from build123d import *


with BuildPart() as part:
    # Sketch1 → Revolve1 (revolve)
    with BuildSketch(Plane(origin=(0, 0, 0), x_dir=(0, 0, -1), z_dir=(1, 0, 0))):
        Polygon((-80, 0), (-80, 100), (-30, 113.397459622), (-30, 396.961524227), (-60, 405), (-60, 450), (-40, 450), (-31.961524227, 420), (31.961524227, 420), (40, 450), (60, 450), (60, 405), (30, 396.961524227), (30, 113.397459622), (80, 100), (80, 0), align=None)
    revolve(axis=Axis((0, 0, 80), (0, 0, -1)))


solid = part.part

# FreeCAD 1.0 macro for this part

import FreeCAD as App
import Part
import Sketcher
Q = App.Units.Quantity

doc = App.newDocument("Part")
body = doc.addObject("PartDesign::Body", "Body")

sketch1 = body.newObject("Sketcher::SketchObject", "Sketch")
sketch1.AttachmentSupport = (doc.getObject("YZ_Plane"), [""])
sketch1.MapMode = "FlatFace"
sketch1.addGeometry([
    Part.LineSegment(App.Vector(100, 80, 0), App.Vector(0, 80, 0)),
    Part.LineSegment(App.Vector(0, 80, 0), App.Vector(0, -80, 0)),
    Part.LineSegment(App.Vector(0, -80, 0), App.Vector(100, -80, 0)),
    Part.LineSegment(App.Vector(100, -80, 0), App.Vector(113, -30, 0)),
    Part.LineSegment(App.Vector(113, -30, 0), App.Vector(397, -30, 0)),
    Part.LineSegment(App.Vector(397, -30, 0), App.Vector(405, -60, 0)),
    Part.LineSegment(App.Vector(405, -60, 0), App.Vector(450, -60, 0)),
    Part.LineSegment(App.Vector(450, -60, 0), App.Vector(450, -40, 0)),
    Part.LineSegment(App.Vector(450, -40, 0), App.Vector(420, -32, 0)),
    Part.LineSegment(App.Vector(420, -32, 0), App.Vector(420, 32, 0)),
    Part.LineSegment(App.Vector(420, 32, 0), App.Vector(450, 40, 0)),
    Part.LineSegment(App.Vector(450, 40, 0), App.Vector(450, 60, 0)),
    Part.LineSegment(App.Vector(450, 60, 0), App.Vector(405, 60, 0)),
    Part.LineSegment(App.Vector(405, 60, 0), App.Vector(397, 30, 0)),
    Part.LineSegment(App.Vector(397, 30, 0), App.Vector(113, 30, 0)),
    Part.LineSegment(App.Vector(113, 30, 0), App.Vector(100, 80, 0)),
], False)
sketch1.addConstraint([
    Sketcher.Constraint("Coincident", 0, 2, 1, 1),
    Sketcher.Constraint("Coincident", 1, 2, 2, 1),
    Sketcher.Constraint("Coincident", 2, 2, 3, 1),
    Sketcher.Constraint("Coincident", 3, 2, 4, 1),
    Sketcher.Constraint("Coincident", 4, 2, 5, 1),
    Sketcher.Constraint("Coincident", 5, 2, 6, 1),
    Sketcher.Constraint("Coincident", 6, 2, 7, 1),
    Sketcher.Constraint("Coincident", 7, 2, 8, 1),
    Sketcher.Constraint("Coincident", 8, 2, 9, 1),
    Sketcher.Constraint("Coincident", 9, 2, 10, 1),
    Sketcher.Constraint("Coincident", 10, 2, 11, 1),
    Sketcher.Constraint("Coincident", 11, 2, 12, 1),
    Sketcher.Constraint("Coincident", 12, 2, 13, 1),
    Sketcher.Constraint("Coincident", 13, 2, 14, 1),
    Sketcher.Constraint("Coincident", 14, 2, 15, 1),
    Sketcher.Constraint("Coincident", 15, 2, 0, 1),
    Sketcher.Constraint("Horizontal", 0),
    Sketcher.Constraint("Vertical", 1),
    Sketcher.Constraint("Horizontal", 2),
    Sketcher.Constraint("Horizontal", 4),
    Sketcher.Constraint("Horizontal", 6),
    Sketcher.Constraint("Vertical", 7),
    Sketcher.Constraint("Vertical", 9),
    Sketcher.Constraint("Vertical", 11),
    Sketcher.Constraint("Horizontal", 12),
    Sketcher.Constraint("Horizontal", 14),
    Sketcher.Constraint("Symmetric", 0, 2, 1, 2, -1, 1),
    Sketcher.Constraint("Symmetric", 7, 2, 10, 2, -1),
    Sketcher.Constraint("Symmetric", 5, 2, 12, 2, -1),
    Sketcher.Constraint("Symmetric", 4, 2, 13, 2, -1),
    Sketcher.Constraint("Perpendicular", 3, 8),
    Sketcher.Constraint("Perpendicular", 5, 10),
    Sketcher.Constraint("Perpendicular", 8, 13),
    Sketcher.Constraint("Perpendicular", 10, 15),
    Sketcher.Constraint("Vertical", 3, 2, 14, 2),
    Sketcher.Constraint("Equal", 5, 8),
    Sketcher.Constraint("DistanceX", 0, 2, 0, 1, Q("100 mm")),
    Sketcher.Constraint("DistanceX", 6, 1, 6, 2, Q("45 mm")),
    Sketcher.Constraint("DistanceY", 1, 2, 1, 1, Q("160 mm")),
    Sketcher.Constraint("DistanceY", 7, 1, 7, 2, Q("20 mm")),
    Sketcher.Constraint("Angle", 3, Q("75 deg")),
    Sketcher.Constraint("DistanceY", 3, 2, -1, 1, Q("30 mm")),
    Sketcher.Constraint("DistanceX", -1, 1, 5, 2, Q("405 mm")),
    Sketcher.Constraint("DistanceY", 5, 2, -1, 1, Q("60 mm")),
])
revolution = body.newObject("PartDesign::Revolution", "Revolution")
revolution.Profile = sketch1
revolution.ReferenceAxis = (sketch1, ["V_Axis"])
revolution.Angle = 360

doc.recompute()
